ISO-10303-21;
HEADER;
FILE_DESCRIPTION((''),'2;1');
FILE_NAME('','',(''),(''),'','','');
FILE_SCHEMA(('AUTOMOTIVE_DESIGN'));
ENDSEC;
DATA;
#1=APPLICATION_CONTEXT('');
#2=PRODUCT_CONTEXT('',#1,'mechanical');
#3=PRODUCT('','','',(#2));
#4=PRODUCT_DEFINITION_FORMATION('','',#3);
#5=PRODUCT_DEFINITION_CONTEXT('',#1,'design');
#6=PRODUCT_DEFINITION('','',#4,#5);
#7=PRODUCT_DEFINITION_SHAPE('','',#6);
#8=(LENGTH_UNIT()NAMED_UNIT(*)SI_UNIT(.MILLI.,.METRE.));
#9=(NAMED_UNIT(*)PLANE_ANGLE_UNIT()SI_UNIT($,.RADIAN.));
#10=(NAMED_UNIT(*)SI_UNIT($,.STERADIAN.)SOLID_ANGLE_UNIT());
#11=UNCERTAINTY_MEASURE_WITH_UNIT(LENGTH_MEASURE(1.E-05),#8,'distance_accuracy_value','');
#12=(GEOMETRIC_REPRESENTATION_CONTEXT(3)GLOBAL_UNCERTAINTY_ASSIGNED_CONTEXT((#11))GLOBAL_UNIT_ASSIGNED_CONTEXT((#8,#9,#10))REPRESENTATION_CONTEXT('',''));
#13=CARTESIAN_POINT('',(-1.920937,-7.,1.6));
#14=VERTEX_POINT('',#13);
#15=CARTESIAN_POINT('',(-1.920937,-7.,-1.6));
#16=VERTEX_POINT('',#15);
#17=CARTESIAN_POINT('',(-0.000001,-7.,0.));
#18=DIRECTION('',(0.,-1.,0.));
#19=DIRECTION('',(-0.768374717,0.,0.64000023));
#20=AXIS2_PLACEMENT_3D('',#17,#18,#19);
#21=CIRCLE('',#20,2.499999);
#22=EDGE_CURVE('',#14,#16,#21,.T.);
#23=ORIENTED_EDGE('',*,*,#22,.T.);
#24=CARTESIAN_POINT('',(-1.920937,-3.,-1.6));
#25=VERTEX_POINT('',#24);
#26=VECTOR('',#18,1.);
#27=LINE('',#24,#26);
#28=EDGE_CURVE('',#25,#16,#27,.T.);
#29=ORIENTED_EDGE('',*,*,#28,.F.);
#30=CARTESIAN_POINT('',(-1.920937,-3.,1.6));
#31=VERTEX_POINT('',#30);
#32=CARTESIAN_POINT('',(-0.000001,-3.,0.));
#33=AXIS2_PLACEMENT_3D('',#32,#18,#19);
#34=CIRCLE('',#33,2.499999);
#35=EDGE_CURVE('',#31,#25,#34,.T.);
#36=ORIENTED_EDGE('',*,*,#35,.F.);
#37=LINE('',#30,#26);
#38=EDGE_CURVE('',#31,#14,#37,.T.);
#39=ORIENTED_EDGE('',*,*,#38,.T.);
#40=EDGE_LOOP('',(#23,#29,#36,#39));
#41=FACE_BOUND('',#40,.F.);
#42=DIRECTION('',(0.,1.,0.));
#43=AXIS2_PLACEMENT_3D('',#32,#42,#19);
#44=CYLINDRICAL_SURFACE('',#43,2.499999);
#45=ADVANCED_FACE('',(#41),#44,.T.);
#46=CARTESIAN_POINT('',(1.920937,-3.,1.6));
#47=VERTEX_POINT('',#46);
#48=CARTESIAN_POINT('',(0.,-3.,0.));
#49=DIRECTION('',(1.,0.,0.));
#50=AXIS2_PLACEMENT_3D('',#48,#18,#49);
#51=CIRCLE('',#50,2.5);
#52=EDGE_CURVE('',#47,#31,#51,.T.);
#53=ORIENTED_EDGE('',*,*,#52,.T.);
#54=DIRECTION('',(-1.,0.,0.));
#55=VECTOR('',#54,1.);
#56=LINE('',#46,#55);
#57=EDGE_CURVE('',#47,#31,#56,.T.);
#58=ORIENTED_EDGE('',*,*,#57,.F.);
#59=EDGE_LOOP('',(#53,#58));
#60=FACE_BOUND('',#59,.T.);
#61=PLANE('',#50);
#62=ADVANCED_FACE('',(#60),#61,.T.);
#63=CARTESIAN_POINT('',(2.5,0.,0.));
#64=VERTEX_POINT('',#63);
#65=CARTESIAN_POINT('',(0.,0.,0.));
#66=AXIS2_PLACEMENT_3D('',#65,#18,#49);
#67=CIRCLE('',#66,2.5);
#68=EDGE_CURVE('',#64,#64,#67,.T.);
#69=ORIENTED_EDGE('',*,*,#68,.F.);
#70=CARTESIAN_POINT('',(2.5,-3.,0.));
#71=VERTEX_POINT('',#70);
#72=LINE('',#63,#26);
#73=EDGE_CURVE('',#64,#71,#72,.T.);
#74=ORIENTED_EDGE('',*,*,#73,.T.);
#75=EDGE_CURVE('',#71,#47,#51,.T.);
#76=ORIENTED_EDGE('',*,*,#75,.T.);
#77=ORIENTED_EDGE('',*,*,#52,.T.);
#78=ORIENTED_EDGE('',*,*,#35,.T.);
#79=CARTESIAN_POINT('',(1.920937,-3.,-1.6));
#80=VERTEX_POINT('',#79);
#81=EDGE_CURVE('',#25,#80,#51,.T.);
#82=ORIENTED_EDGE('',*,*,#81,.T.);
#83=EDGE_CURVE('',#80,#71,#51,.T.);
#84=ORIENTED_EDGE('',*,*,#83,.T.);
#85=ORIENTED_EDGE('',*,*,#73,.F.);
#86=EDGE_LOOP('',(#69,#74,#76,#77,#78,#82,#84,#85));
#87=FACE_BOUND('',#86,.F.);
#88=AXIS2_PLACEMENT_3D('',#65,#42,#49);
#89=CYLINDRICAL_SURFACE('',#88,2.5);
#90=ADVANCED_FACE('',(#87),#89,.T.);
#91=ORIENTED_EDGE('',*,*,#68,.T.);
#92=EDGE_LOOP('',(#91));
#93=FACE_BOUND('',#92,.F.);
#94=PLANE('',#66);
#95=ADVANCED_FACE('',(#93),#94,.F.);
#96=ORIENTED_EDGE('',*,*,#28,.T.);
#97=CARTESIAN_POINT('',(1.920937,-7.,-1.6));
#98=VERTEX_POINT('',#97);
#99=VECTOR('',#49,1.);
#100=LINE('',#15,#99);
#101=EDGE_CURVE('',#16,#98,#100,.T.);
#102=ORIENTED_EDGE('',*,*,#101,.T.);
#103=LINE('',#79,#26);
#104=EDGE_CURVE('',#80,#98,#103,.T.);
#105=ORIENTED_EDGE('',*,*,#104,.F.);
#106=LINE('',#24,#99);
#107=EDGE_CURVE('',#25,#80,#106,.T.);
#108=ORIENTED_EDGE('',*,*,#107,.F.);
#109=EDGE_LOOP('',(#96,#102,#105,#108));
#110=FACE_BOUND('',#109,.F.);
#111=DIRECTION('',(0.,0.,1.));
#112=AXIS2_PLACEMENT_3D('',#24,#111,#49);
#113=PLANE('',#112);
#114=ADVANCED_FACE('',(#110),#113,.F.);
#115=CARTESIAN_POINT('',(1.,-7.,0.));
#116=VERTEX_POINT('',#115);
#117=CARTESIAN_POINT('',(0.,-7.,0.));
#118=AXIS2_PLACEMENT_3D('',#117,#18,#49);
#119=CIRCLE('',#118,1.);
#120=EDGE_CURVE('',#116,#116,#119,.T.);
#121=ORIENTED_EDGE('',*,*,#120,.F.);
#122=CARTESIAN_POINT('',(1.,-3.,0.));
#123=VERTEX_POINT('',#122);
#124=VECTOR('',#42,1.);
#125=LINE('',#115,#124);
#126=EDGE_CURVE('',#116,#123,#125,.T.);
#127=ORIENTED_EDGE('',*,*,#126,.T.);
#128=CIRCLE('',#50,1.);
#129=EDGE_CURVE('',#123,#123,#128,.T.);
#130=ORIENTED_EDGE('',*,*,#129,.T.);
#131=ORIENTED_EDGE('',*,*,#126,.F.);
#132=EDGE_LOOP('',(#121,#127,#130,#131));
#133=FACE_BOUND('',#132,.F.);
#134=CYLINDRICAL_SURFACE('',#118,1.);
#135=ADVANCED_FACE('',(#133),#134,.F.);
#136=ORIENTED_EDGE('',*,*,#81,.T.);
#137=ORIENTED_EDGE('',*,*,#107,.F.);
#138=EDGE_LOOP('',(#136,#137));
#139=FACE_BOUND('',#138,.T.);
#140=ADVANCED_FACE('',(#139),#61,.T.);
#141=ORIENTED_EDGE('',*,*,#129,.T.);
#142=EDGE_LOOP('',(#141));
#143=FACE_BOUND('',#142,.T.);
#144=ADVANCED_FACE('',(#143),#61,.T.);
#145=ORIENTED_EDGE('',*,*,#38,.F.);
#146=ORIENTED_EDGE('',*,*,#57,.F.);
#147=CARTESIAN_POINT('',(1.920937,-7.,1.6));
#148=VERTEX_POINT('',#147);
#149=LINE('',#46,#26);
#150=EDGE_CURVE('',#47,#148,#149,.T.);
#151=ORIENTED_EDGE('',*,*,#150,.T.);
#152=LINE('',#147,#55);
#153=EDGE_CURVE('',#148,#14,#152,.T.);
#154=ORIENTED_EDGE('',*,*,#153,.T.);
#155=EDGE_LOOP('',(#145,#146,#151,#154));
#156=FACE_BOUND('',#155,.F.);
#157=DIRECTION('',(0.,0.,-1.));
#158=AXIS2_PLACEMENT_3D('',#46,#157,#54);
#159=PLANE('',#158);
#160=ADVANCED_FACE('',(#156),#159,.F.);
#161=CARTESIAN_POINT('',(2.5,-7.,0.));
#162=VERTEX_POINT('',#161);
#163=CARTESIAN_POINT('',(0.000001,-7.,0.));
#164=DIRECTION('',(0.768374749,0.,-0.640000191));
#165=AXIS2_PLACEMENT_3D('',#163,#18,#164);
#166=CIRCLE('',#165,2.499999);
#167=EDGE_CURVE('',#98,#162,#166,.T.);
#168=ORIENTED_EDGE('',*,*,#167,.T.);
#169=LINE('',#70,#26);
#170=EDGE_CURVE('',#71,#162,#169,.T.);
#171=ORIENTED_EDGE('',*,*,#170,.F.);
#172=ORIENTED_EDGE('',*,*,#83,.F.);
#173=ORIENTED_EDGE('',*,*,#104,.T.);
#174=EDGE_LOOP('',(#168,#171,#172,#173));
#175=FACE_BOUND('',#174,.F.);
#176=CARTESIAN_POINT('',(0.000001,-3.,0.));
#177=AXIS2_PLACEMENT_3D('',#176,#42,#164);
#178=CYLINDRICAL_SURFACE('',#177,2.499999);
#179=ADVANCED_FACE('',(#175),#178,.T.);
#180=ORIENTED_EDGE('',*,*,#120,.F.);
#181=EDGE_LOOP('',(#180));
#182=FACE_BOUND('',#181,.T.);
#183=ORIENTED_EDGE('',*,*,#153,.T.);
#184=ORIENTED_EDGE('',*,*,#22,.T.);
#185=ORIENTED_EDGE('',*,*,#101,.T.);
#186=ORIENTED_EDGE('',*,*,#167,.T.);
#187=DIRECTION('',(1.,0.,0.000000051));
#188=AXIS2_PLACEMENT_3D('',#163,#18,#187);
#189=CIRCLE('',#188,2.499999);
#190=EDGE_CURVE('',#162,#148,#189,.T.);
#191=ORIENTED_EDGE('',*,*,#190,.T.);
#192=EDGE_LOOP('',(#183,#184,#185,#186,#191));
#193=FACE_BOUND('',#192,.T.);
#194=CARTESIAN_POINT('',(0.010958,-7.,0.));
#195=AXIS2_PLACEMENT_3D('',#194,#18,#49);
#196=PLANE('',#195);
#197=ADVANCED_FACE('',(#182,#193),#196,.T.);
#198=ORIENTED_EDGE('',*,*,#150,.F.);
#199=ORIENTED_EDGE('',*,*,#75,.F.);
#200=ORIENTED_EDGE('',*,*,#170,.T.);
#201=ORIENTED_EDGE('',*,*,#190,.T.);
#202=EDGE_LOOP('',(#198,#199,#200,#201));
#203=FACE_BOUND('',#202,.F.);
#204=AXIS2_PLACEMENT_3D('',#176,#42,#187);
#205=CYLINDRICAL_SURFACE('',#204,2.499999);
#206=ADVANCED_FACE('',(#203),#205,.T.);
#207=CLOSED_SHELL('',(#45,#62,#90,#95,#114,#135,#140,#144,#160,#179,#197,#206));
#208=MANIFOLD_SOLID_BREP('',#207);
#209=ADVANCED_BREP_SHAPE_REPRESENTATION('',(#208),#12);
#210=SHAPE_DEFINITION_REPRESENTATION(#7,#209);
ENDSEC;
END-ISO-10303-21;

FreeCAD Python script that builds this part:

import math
import FreeCAD as App
import Part
import Sketcher
from FreeCAD import Vector
Q = App.Units.Quantity

doc = App.newDocument("Part")
body = doc.addObject("PartDesign::Body", "Body")

# Sketch on XZ plane
sketch1 = body.newObject("Sketcher::SketchObject", "Sketch")
sketch1.AttachmentSupport = (doc.getObject("XZ_Plane"), [""])
sketch1.MapMode = "FlatFace"
sketch1.addGeometry(Part.Circle(Vector(0, 0, 0), Vector(0, 0, 1), 2.5), False)
sketch1.addConstraint([
    Sketcher.Constraint("Coincident", 0, 3, -1, 1),
    Sketcher.Constraint("Diameter", 0, Q("5 mm")),
])
pad1 = body.newObject("PartDesign::Pad", "Pad")
pad1.Profile = sketch1
pad1.Length = 3

# Sketch on XZ plane
sketch2 = body.newObject("Sketcher::SketchObject", "Sketch001")
sketch2.AttachmentSupport = (doc.getObject("XZ_Plane"), [""])
sketch2.MapMode = "FlatFace"
sketch2.AttachmentOffset = App.Placement(Vector(0, 0, 3), App.Rotation())
sketch2.addGeometry([
    Part.LineSegment(Vector(1.920937, 1.6, 0), Vector(-1.920937, 1.6, 0)),  # 0
    Part.ArcOfCircle(Part.Circle(Vector(-0.000001, 0, 0), Vector(0, 0, 1), 2.499999), math.radians(140.208163), math.radians(219.791837)),  # 1
    Part.LineSegment(Vector(-1.920937, -1.6, 0), Vector(1.920937, -1.6, 0)),  # 2
    Part.ArcOfCircle(Part.Circle(Vector(0.000001, 0, 0), Vector(0, 0, 1), 2.499999), math.radians(-39.791834), math.radians(-0.000003)),  # 3
    Part.ArcOfCircle(Part.Circle(Vector(0.000001, 0, 0), Vector(0, 0, 1), 2.499999), math.radians(0.000003), math.radians(39.791834)),  # 4
], False)
sketch2.addConstraint([
    Sketcher.Constraint("Coincident", 0, 2, 1, 1),
    Sketcher.Constraint("Coincident", 1, 2, 2, 1),
    Sketcher.Constraint("Coincident", 2, 2, 3, 1),
    Sketcher.Constraint("Tangent", 3, 2, 4, 1),
    Sketcher.Constraint("Coincident", 4, 2, 0, 1),
    Sketcher.Constraint("Horizontal", 0),
    Sketcher.Constraint("Horizontal", 2),
    Sketcher.Constraint("Coincident", 1, 3, -1, 1),
    Sketcher.Constraint("Coincident", 3, 3, -1, 1),
    Sketcher.Constraint("Equal", 1, 3),
    Sketcher.Constraint("Equal", 3, 4),
    Sketcher.Constraint("PointOnObject", 3, 2, -1),
    Sketcher.Constraint("Vertical", 0, 2, 1, 2),
    Sketcher.Constraint("Radius", 1, Q("2.499999 mm")),
    Sketcher.Constraint("DistanceY", -1, 1, 0, 2, Q("1.6 mm")),
])
pad2 = body.newObject("PartDesign::Pad", "Pad001")
pad2.Profile = sketch2
pad2.Length = 4

# Sketch on XZ plane
sketch3 = body.newObject("Sketcher::SketchObject", "Sketch002")
sketch3.AttachmentSupport = (doc.getObject("XZ_Plane"), [""])
sketch3.MapMode = "FlatFace"
sketch3.AttachmentOffset = App.Placement(Vector(0, 0, 7), App.Rotation())
sketch3.addGeometry(Part.Circle(Vector(0, 0, 0), Vector(0, 0, 1), 1), False)
sketch3.addConstraint([
    Sketcher.Constraint("Coincident", 0, 3, -1, 1),
    Sketcher.Constraint("Diameter", 0, Q("2 mm")),
])
pocket1 = body.newObject("PartDesign::Pocket", "Pocket")
pocket1.Profile = sketch3
pocket1.Length = 4

doc.recompute()
